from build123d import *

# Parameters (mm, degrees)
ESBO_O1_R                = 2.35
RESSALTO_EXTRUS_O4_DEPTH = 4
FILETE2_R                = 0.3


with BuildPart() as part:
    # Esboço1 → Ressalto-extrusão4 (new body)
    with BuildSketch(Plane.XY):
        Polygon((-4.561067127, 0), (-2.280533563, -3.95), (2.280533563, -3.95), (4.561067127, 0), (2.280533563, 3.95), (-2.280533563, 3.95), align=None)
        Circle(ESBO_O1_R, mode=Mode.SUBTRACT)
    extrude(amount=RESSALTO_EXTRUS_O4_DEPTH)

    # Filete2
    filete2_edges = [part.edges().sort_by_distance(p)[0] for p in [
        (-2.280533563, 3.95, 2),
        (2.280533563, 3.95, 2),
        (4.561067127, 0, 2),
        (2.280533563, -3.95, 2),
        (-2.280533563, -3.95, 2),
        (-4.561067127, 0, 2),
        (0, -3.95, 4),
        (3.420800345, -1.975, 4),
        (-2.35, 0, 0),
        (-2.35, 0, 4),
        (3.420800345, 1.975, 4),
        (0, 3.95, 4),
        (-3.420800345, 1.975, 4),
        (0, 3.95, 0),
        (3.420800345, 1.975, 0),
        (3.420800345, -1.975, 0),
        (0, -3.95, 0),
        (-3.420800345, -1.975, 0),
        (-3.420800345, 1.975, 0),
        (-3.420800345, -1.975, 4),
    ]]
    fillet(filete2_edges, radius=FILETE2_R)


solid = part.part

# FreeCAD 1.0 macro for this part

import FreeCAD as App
import Part
import Sketcher
from FreeCAD import Vector
Q = App.Units.Quantity


def add_polygon(sketch, points):
    """Adds a closed chain of lines whose ends are joined by coincident constraints."""
    first, n = sketch.GeometryCount, len(points)
    for a, b in zip(points, points[1:] + points[:1]):
        sketch.addGeometry(Part.LineSegment(App.Vector(*a, 0), App.Vector(*b, 0)), False)
    for i in range(n):
        sketch.addConstraint(Sketcher.Constraint("Coincident", first + i, 2, first + (i + 1) % n, 1))

doc = App.newDocument("Part")
params = doc.addObject("Spreadsheet::Sheet", "Params")
for row, (alias, value) in enumerate([
    ("sketch1_diameter", "4.7 mm"),
    ("pad1_length", "4 mm"),
    ("fillet_radius", "0.3 mm"),
], start=1):
    params.set(f"A{row}", alias)
    params.set(f"B{row}", "=" + value)
    params.setAlias(f"B{row}", alias)

body = doc.addObject("PartDesign::Body", "Body")

# Sketch on XY plane
sketch1 = body.newObject("Sketcher::SketchObject", "Sketch")
sketch1.AttachmentSupport = (doc.getObject("XY_Plane"), [""])
sketch1.MapMode = "FlatFace"
add_polygon(sketch1, [(-4.6, 0), (-2.3, -4), (2.3, -4), (4.6, 0), (2.3, 4), (-2.3, 4)])  # lines 0-5
sketch1.addGeometry(Part.Circle(Vector(0, 0, 0), Vector(0, 0, 1), 2.4), False)  # 6
sketch1.addConstraint([
    Sketcher.Constraint("Horizontal", 1),
    Sketcher.Constraint("Horizontal", 4),
    Sketcher.Constraint("Coincident", 6, 3, -1, 1),
    Sketcher.Constraint("Symmetric", 0, 2, 3, 2, -1, 1),
    Sketcher.Constraint("Symmetric", 2, 2, 5, 2, -1, 1),
    Sketcher.Constraint("PointOnObject", 2, 2, -1),
    Sketcher.Constraint("Parallel", 2, 5),
    Sketcher.Constraint("Vertical", 1, 2, 3, 2),
    Sketcher.Constraint("Diameter", 6, Q("4.7 mm")),
    Sketcher.Constraint("Angle", 0, Q("-60 deg")),
    Sketcher.Constraint("DistanceY", 1, 2, 3, 2, Q("7.9 mm")),
    Sketcher.Constraint("DistanceX", 0, 2, 2, 2, Q("6.841601 mm")),
])
sketch1.setExpression("Constraints[14]", "Params.sketch1_diameter")
pad1 = body.newObject("PartDesign::Pad", "Pad")
pad1.Profile = sketch1
pad1.setExpression("Length", "Params.pad1_length")
doc.recompute()

fillet = body.newObject("PartDesign::Fillet", "Fillet")
fillet.Base = (pad1, ["Edge1"])
fillet.UseAllEdges = True
fillet.setExpression("Radius", "Params.fillet_radius")

doc.recompute()
